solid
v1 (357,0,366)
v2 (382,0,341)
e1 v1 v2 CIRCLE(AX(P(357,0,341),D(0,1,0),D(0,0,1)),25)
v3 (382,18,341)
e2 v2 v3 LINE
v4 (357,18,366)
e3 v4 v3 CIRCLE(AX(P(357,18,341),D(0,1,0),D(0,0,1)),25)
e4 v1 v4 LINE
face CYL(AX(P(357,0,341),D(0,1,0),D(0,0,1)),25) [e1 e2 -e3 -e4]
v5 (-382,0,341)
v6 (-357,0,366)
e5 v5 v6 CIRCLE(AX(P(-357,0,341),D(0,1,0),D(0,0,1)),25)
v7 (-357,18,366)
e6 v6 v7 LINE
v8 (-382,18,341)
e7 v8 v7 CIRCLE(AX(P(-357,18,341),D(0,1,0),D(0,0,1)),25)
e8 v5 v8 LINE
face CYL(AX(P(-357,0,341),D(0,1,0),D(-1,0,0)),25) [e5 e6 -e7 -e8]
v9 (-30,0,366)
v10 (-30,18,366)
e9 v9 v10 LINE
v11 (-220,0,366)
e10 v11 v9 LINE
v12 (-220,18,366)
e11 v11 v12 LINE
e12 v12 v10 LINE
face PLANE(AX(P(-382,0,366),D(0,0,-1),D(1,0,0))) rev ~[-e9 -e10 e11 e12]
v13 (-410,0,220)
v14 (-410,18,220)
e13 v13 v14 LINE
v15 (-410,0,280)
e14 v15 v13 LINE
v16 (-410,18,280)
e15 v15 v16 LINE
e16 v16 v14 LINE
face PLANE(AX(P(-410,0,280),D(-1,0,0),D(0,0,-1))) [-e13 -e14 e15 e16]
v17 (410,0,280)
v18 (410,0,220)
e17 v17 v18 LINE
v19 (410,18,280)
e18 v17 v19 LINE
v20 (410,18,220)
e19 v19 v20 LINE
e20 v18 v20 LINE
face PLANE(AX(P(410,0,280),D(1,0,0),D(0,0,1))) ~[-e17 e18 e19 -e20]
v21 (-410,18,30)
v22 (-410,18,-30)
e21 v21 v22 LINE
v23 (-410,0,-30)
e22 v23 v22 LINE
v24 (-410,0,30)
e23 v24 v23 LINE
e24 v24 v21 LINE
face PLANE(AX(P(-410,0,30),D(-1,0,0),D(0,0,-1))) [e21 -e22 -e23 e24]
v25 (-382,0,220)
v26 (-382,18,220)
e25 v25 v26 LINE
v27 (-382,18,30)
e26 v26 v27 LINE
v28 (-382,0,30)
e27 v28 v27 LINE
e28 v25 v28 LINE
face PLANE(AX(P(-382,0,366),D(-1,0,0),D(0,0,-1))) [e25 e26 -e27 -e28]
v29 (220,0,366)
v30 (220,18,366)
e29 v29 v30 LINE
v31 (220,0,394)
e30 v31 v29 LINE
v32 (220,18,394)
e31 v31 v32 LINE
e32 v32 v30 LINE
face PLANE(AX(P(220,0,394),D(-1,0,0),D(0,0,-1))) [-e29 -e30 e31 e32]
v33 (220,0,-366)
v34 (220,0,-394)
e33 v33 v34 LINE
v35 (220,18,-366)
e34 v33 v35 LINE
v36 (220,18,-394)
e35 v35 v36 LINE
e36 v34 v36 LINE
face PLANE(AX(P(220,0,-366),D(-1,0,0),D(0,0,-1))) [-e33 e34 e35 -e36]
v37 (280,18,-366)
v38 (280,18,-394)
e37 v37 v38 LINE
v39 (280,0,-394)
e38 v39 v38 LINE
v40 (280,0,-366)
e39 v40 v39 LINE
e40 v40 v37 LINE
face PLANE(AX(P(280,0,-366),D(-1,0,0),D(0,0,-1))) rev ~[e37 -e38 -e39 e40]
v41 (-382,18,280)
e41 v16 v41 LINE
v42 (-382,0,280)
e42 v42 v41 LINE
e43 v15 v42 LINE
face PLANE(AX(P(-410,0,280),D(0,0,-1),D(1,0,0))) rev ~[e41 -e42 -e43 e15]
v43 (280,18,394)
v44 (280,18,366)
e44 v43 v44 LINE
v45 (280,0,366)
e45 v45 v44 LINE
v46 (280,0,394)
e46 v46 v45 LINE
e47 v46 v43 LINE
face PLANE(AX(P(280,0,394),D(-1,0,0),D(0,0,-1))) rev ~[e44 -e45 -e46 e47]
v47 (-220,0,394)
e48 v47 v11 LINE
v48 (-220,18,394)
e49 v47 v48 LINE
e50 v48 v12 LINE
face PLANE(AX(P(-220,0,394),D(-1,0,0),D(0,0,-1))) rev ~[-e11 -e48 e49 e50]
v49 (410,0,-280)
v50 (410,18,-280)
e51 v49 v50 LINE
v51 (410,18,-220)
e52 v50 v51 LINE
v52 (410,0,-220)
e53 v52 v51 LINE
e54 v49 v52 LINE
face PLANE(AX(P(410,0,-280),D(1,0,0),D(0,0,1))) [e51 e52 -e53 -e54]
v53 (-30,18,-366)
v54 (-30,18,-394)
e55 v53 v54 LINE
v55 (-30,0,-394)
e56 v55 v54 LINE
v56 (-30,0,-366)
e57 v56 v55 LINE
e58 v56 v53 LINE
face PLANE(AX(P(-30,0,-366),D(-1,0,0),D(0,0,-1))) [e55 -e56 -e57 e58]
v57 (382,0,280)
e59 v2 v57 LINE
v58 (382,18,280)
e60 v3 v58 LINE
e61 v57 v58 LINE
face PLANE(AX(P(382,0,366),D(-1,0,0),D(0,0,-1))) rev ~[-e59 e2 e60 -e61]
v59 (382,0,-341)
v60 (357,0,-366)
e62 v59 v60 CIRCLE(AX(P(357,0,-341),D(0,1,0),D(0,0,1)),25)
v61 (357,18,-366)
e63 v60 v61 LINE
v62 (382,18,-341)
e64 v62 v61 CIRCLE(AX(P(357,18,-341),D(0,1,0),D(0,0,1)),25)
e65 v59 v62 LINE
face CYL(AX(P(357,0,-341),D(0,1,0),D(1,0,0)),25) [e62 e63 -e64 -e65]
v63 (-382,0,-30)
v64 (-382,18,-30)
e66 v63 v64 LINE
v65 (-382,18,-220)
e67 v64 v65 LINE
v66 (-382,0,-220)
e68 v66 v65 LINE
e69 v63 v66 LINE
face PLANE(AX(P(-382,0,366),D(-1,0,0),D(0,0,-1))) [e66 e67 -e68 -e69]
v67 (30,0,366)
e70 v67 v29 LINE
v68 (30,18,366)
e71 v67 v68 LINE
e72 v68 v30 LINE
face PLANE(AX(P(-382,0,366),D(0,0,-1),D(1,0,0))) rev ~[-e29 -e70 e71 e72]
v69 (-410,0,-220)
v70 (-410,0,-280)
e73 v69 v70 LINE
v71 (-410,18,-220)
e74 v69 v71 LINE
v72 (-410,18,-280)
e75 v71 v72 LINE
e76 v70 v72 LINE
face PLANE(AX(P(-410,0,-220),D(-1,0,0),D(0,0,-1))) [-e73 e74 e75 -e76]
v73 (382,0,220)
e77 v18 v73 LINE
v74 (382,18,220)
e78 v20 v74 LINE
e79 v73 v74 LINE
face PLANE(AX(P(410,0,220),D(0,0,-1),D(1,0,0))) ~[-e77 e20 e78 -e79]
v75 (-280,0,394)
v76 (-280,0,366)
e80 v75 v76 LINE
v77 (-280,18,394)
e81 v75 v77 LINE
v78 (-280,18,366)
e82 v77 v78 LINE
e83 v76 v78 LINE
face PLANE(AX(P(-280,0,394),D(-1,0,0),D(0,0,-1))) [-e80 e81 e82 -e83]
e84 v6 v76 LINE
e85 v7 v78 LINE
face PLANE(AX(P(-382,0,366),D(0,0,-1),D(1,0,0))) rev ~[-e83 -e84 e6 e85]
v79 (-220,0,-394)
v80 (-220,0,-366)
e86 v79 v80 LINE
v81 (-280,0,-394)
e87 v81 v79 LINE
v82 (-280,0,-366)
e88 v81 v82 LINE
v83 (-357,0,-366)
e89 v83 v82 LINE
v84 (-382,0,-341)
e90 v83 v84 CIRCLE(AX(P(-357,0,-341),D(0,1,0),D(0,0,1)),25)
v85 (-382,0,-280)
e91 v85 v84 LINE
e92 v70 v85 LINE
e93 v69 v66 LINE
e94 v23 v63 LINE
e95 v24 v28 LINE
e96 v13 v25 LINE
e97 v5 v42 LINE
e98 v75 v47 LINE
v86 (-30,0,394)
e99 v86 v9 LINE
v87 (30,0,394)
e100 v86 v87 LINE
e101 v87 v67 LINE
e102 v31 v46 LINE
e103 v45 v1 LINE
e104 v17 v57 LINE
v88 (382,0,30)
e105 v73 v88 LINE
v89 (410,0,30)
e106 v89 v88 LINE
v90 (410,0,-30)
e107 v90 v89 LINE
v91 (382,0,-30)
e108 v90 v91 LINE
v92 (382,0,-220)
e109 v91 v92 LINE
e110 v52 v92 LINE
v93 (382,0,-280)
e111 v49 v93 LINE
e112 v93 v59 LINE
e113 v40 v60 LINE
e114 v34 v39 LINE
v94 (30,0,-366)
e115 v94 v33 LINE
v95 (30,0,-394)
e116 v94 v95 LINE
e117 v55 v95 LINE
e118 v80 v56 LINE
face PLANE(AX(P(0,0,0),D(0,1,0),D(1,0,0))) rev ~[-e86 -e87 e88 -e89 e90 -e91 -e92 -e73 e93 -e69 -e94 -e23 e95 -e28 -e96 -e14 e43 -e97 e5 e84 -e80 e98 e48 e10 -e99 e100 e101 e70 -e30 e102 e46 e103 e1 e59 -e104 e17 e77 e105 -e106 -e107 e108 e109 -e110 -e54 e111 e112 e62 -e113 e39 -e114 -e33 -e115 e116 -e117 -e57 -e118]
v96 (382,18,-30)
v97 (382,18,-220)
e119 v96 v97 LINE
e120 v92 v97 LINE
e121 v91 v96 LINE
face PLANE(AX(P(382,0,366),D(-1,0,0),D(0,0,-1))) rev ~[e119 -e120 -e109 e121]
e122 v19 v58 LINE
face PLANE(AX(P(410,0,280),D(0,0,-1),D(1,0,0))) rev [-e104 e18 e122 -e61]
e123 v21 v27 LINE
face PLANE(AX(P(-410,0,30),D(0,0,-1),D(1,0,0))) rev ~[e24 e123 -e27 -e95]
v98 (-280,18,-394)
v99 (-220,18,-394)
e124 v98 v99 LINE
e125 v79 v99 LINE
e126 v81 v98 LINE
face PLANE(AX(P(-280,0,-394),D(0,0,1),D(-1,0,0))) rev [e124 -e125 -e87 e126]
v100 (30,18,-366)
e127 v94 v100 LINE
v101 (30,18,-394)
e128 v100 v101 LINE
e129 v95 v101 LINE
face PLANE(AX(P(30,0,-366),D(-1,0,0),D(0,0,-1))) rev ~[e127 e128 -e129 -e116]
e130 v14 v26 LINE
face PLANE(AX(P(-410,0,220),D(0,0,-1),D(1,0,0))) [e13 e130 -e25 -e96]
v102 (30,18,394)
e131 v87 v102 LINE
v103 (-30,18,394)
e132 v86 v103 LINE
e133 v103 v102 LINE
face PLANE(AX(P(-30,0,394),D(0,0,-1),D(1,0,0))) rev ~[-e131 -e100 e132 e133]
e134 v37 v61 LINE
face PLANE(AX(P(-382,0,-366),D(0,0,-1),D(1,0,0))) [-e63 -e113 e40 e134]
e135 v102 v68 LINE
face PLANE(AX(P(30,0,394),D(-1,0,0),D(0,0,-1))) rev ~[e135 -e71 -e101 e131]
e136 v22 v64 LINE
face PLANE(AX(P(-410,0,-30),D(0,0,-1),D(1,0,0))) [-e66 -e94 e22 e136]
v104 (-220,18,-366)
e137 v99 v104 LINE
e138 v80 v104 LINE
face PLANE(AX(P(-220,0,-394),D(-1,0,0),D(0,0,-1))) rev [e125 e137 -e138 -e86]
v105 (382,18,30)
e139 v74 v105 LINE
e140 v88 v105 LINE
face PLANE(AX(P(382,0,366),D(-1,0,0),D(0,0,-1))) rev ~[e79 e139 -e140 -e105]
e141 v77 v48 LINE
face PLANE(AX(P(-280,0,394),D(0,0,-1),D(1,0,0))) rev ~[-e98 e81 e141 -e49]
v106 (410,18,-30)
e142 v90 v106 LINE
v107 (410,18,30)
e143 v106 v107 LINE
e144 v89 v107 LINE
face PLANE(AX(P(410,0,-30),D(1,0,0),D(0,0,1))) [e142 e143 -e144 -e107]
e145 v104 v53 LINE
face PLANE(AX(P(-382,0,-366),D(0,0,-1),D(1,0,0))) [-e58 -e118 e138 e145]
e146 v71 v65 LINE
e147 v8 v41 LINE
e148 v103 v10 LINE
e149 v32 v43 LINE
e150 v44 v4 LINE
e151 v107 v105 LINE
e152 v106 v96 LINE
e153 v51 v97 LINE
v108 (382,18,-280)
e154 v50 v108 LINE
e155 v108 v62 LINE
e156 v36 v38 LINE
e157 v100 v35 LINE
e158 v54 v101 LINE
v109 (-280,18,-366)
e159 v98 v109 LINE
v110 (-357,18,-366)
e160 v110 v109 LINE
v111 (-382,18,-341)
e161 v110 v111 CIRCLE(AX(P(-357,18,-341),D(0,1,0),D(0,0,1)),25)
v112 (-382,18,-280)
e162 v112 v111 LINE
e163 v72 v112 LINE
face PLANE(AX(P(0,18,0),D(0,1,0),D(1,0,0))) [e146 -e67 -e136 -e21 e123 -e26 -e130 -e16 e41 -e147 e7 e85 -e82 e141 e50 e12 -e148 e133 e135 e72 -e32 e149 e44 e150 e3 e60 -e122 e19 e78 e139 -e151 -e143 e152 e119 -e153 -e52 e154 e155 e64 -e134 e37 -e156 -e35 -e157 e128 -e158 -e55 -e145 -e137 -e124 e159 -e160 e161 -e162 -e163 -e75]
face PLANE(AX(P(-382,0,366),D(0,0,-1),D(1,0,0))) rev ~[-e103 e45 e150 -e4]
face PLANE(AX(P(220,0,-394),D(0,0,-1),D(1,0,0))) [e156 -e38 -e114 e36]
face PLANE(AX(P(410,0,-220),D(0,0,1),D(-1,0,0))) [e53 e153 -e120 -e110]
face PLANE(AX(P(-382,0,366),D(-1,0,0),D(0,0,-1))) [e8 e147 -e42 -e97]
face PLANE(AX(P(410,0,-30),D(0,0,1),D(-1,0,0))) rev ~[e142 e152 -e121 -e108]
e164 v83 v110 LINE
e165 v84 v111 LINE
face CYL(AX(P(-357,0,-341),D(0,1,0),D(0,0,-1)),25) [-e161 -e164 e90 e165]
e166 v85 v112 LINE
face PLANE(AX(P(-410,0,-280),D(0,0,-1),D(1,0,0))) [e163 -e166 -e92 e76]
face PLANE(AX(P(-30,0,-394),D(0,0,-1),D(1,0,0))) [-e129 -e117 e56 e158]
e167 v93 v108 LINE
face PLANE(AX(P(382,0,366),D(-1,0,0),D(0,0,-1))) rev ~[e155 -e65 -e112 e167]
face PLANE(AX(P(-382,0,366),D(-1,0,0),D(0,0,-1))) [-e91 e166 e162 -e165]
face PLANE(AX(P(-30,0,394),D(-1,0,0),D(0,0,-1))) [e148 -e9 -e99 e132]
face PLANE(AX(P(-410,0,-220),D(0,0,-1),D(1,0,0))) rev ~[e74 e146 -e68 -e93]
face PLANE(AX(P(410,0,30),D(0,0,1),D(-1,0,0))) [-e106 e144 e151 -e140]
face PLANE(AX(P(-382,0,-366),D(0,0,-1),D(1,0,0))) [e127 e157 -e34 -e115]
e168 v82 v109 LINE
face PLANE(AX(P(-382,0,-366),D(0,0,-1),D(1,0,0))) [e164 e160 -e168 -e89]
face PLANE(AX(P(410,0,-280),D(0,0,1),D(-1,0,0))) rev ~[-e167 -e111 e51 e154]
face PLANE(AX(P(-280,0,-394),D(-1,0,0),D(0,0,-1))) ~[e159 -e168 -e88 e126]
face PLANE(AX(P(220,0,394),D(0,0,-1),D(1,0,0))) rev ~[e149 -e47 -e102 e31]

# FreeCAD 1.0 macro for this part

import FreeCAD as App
import Part
import Sketcher
Q = App.Units.Quantity


def edges_at(feature, points):
    """Names of the edges that pass closest to the given points."""
    edges = feature.Shape.Edges
    near = lambda p: min(range(len(edges)), key=lambda i: edges[i].distToShape(Part.Vertex(*p))[0])
    return sorted({f"Edge{near(p) + 1}" for p in points})

doc = App.newDocument("Part")
body = doc.addObject("PartDesign::Body", "Body")

# Sketch on XZ plane
sketch1 = doc.addObject("Sketcher::SketchObject", "Sketch")
body.addObject(sketch1)
sketch1.AttachmentSupport = (doc.XZ_Plane, [""])
sketch1.MapMode = "FlatFace"
sketch1.addGeometry([
    Part.LineSegment(App.Vector(-382, -366, 0), App.Vector(-382, 366, 0)),
    Part.LineSegment(App.Vector(-382, 366, 0), App.Vector(382, 366, 0)),
    Part.LineSegment(App.Vector(382, 366, 0), App.Vector(382, -366, 0)),
    Part.LineSegment(App.Vector(382, -366, 0), App.Vector(-382, -366, 0)),
], False)
sketch1.addConstraint([
    Sketcher.Constraint("Coincident", 0, 2, 1, 1),
    Sketcher.Constraint("Coincident", 1, 2, 2, 1),
    Sketcher.Constraint("Coincident", 2, 2, 3, 1),
    Sketcher.Constraint("Coincident", 3, 2, 0, 1),
    Sketcher.Constraint("Vertical", 0),
    Sketcher.Constraint("Horizontal", 1),
    Sketcher.Constraint("Vertical", 2),
    Sketcher.Constraint("Horizontal", 3),
    Sketcher.Constraint("Symmetric", 0, 2, 2, 2, -1, 1),
    Sketcher.Constraint("DistanceX", 1, 1, 1, 2, Q("764 mm")),
    Sketcher.Constraint("DistanceY", 0, 1, 0, 2, Q("732 mm")),
])
pad1 = doc.addObject("PartDesign::Pad", "Pad")
body.addObject(pad1)
pad1.Profile = sketch1
pad1.Length = 18
pad1.Reversed = True

# Sketch on XZ plane
sketch2 = doc.addObject("Sketcher::SketchObject", "Sketch001")
body.addObject(sketch2)
sketch2.AttachmentSupport = (doc.XZ_Plane, [""])
sketch2.MapMode = "FlatFace"
sketch2.addGeometry([
    Part.LineSegment(App.Vector(-410, 220, 0), App.Vector(-410, 280, 0)),
    Part.LineSegment(App.Vector(-410, 280, 0), App.Vector(-382, 280, 0)),
    Part.LineSegment(App.Vector(-382, 280, 0), App.Vector(-382, 220, 0)),
    Part.LineSegment(App.Vector(-382, 220, 0), App.Vector(-410, 220, 0)),
], False)
sketch2.addConstraint([
    Sketcher.Constraint("Coincident", 0, 2, 1, 1),
    Sketcher.Constraint("Coincident", 1, 2, 2, 1),
    Sketcher.Constraint("Coincident", 2, 2, 3, 1),
    Sketcher.Constraint("Coincident", 3, 2, 0, 1),
    Sketcher.Constraint("Vertical", 0),
    Sketcher.Constraint("Horizontal", 1),
    Sketcher.Constraint("Vertical", 2),
    Sketcher.Constraint("Horizontal", 3),
    Sketcher.Constraint("DistanceX", 1, 1, 1, 2, Q("28 mm")),
    Sketcher.Constraint("DistanceY", 0, 1, 0, 2, Q("60 mm")),
    Sketcher.Constraint("DistanceX", 0, 2, -1, 1, Q("410 mm")),
    Sketcher.Constraint("DistanceY", -1, 1, 0, 2, Q("280 mm")),
])
pad2 = doc.addObject("PartDesign::Pad", "Pad001")
body.addObject(pad2)
pad2.Profile = sketch2
pad2.Length = 18
pad2.Reversed = True
doc.recompute()

linearpattern = doc.addObject("PartDesign::LinearPattern", "LinearPattern")
body.addObject(linearpattern)
linearpattern.Originals = [pad2]
linearpattern.Direction = (doc.Z_Axis, [""])
linearpattern.Mode = "offset"
linearpattern.Offset = 250
linearpattern.Occurrences = 3
linearpattern.Reversed = True
body.Tip = linearpattern
doc.recompute()

mirrored = doc.addObject("PartDesign::Mirrored", "Mirrored")
body.addObject(mirrored)
mirrored.Originals = [pad2]
mirrored.MirrorPlane = (doc.YZ_Plane, [""])
body.Tip = mirrored

# Sketch on XZ plane
sketch3 = doc.addObject("Sketcher::SketchObject", "Sketch002")
body.addObject(sketch3)
sketch3.AttachmentSupport = (doc.XZ_Plane, [""])
sketch3.MapMode = "FlatFace"
sketch3.addGeometry([
    Part.LineSegment(App.Vector(410, 30, 0), App.Vector(410, -30, 0)),
    Part.LineSegment(App.Vector(410, -30, 0), App.Vector(382, -30, 0)),
    Part.LineSegment(App.Vector(382, -30, 0), App.Vector(382, 30, 0)),
    Part.LineSegment(App.Vector(382, 30, 0), App.Vector(410, 30, 0)),
], False)
sketch3.addConstraint([
    Sketcher.Constraint("Coincident", 0, 2, 1, 1),
    Sketcher.Constraint("Coincident", 1, 2, 2, 1),
    Sketcher.Constraint("Coincident", 2, 2, 3, 1),
    Sketcher.Constraint("Coincident", 3, 2, 0, 1),
    Sketcher.Constraint("Vertical", 0),
    Sketcher.Constraint("Horizontal", 1),
    Sketcher.Constraint("Vertical", 2),
    Sketcher.Constraint("Horizontal", 3),
    Sketcher.Constraint("DistanceX", 1, 2, 1, 1, Q("28 mm")),
    Sketcher.Constraint("DistanceY", 0, 2, 0, 1, Q("60 mm")),
    Sketcher.Constraint("DistanceX", -1, 1, 0, 2, Q("410 mm")),
    Sketcher.Constraint("DistanceY", 0, 2, -1, 1, Q("30 mm")),
])
pad3 = doc.addObject("PartDesign::Pad", "Pad002")
body.addObject(pad3)
pad3.Profile = sketch3
pad3.Length = 18
pad3.Reversed = True

# Sketch on XZ plane
sketch4 = doc.addObject("Sketcher::SketchObject", "Sketch003")
body.addObject(sketch4)
sketch4.AttachmentSupport = (doc.XZ_Plane, [""])
sketch4.MapMode = "FlatFace"
sketch4.addGeometry([
    Part.LineSegment(App.Vector(410, -220, 0), App.Vector(410, -280, 0)),
    Part.LineSegment(App.Vector(410, -280, 0), App.Vector(382, -280, 0)),
    Part.LineSegment(App.Vector(382, -280, 0), App.Vector(382, -220, 0)),
    Part.LineSegment(App.Vector(382, -220, 0), App.Vector(410, -220, 0)),
], False)
sketch4.addConstraint([
    Sketcher.Constraint("Coincident", 0, 2, 1, 1),
    Sketcher.Constraint("Coincident", 1, 2, 2, 1),
    Sketcher.Constraint("Coincident", 2, 2, 3, 1),
    Sketcher.Constraint("Coincident", 3, 2, 0, 1),
    Sketcher.Constraint("Vertical", 0),
    Sketcher.Constraint("Horizontal", 1),
    Sketcher.Constraint("Vertical", 2),
    Sketcher.Constraint("Horizontal", 3),
    Sketcher.Constraint("DistanceX", 1, 2, 1, 1, Q("28 mm")),
    Sketcher.Constraint("DistanceY", 0, 2, 0, 1, Q("60 mm")),
    Sketcher.Constraint("DistanceX", -1, 1, 0, 2, Q("410 mm")),
    Sketcher.Constraint("DistanceY", 0, 2, -1, 1, Q("280 mm")),
])
pad4 = doc.addObject("PartDesign::Pad", "Pad003")
body.addObject(pad4)
pad4.Profile = sketch4
pad4.Length = 18
pad4.Reversed = True

# Sketch on XZ plane
sketch5 = doc.addObject("Sketcher::SketchObject", "Sketch004")
body.addObject(sketch5)
sketch5.AttachmentSupport = (doc.XZ_Plane, [""])
sketch5.MapMode = "FlatFace"
sketch5.addGeometry([
    Part.LineSegment(App.Vector(-280, 366, 0), App.Vector(-280, 394, 0)),
    Part.LineSegment(App.Vector(-280, 394, 0), App.Vector(-220, 394, 0)),
    Part.LineSegment(App.Vector(-220, 394, 0), App.Vector(-220, 366, 0)),
    Part.LineSegment(App.Vector(-220, 366, 0), App.Vector(-280, 366, 0)),
], False)
sketch5.addConstraint([
    Sketcher.Constraint("Coincident", 0, 2, 1, 1),
    Sketcher.Constraint("Coincident", 1, 2, 2, 1),
    Sketcher.Constraint("Coincident", 2, 2, 3, 1),
    Sketcher.Constraint("Coincident", 3, 2, 0, 1),
    Sketcher.Constraint("Vertical", 0),
    Sketcher.Constraint("Horizontal", 1),
    Sketcher.Constraint("Vertical", 2),
    Sketcher.Constraint("Horizontal", 3),
    Sketcher.Constraint("DistanceX", 1, 1, 1, 2, Q("60 mm")),
    Sketcher.Constraint("DistanceY", 0, 1, 0, 2, Q("28 mm")),
    Sketcher.Constraint("DistanceX", 0, 2, -1, 1, Q("280 mm")),
    Sketcher.Constraint("DistanceY", -1, 1, 0, 2, Q("394 mm")),
])
pad5 = doc.addObject("PartDesign::Pad", "Pad004")
body.addObject(pad5)
pad5.Profile = sketch5
pad5.Length = 18
pad5.Reversed = True
doc.recompute()

linearpattern2 = doc.addObject("PartDesign::LinearPattern", "LinearPattern001")
body.addObject(linearpattern2)
linearpattern2.Originals = [pad5]
linearpattern2.Direction = (doc.X_Axis, [""])
linearpattern2.Mode = "offset"
linearpattern2.Offset = 250
linearpattern2.Occurrences = 3
body.Tip = linearpattern2
doc.recompute()

mirrored2 = doc.addObject("PartDesign::Mirrored", "Mirrored001")
body.addObject(mirrored2)
mirrored2.Originals = [pad5]
mirrored2.MirrorPlane = (doc.XY_Plane, [""])
body.Tip = mirrored2

# Sketch on XZ plane
sketch6 = doc.addObject("Sketcher::SketchObject", "Sketch005")
body.addObject(sketch6)
sketch6.AttachmentSupport = (doc.XZ_Plane, [""])
sketch6.MapMode = "FlatFace"
sketch6.addGeometry([
    Part.LineSegment(App.Vector(-30, -394, 0), App.Vector(-30, -366, 0)),
    Part.LineSegment(App.Vector(-30, -366, 0), App.Vector(30, -366, 0)),
    Part.LineSegment(App.Vector(30, -366, 0), App.Vector(30, -394, 0)),
    Part.LineSegment(App.Vector(30, -394, 0), App.Vector(-30, -394, 0)),
], False)
sketch6.addConstraint([
    Sketcher.Constraint("Coincident", 0, 2, 1, 1),
    Sketcher.Constraint("Coincident", 1, 2, 2, 1),
    Sketcher.Constraint("Coincident", 2, 2, 3, 1),
    Sketcher.Constraint("Coincident", 3, 2, 0, 1),
    Sketcher.Constraint("Vertical", 0),
    Sketcher.Constraint("Horizontal", 1),
    Sketcher.Constraint("Vertical", 2),
    Sketcher.Constraint("Horizontal", 3),
    Sketcher.Constraint("DistanceX", 1, 1, 1, 2, Q("60 mm")),
    Sketcher.Constraint("DistanceY", 0, 1, 0, 2, Q("28 mm")),
    Sketcher.Constraint("DistanceX", 0, 2, -1, 1, Q("30 mm")),
    Sketcher.Constraint("DistanceY", 0, 2, -1, 1, Q("366 mm")),
])
pad6 = doc.addObject("PartDesign::Pad", "Pad005")
body.addObject(pad6)
pad6.Profile = sketch6
pad6.Length = 18
pad6.Reversed = True

# Sketch on XZ plane
sketch7 = doc.addObject("Sketcher::SketchObject", "Sketch006")
body.addObject(sketch7)
sketch7.AttachmentSupport = (doc.XZ_Plane, [""])
sketch7.MapMode = "FlatFace"
sketch7.addGeometry([
    Part.LineSegment(App.Vector(220, -394, 0), App.Vector(220, -366, 0)),
    Part.LineSegment(App.Vector(220, -366, 0), App.Vector(280, -366, 0)),
    Part.LineSegment(App.Vector(280, -366, 0), App.Vector(280, -394, 0)),
    Part.LineSegment(App.Vector(280, -394, 0), App.Vector(220, -394, 0)),
], False)
sketch7.addConstraint([
    Sketcher.Constraint("Coincident", 0, 2, 1, 1),
    Sketcher.Constraint("Coincident", 1, 2, 2, 1),
    Sketcher.Constraint("Coincident", 2, 2, 3, 1),
    Sketcher.Constraint("Coincident", 3, 2, 0, 1),
    Sketcher.Constraint("Vertical", 0),
    Sketcher.Constraint("Horizontal", 1),
    Sketcher.Constraint("Vertical", 2),
    Sketcher.Constraint("Horizontal", 3),
    Sketcher.Constraint("DistanceX", 1, 1, 1, 2, Q("60 mm")),
    Sketcher.Constraint("DistanceY", 0, 1, 0, 2, Q("28 mm")),
    Sketcher.Constraint("DistanceX", -1, 1, 0, 2, Q("220 mm")),
    Sketcher.Constraint("DistanceY", 0, 2, -1, 1, Q("366 mm")),
])
pad7 = doc.addObject("PartDesign::Pad", "Pad006")
body.addObject(pad7)
pad7.Profile = sketch7
pad7.Length = 18
pad7.Reversed = True
doc.recompute()

fillet = doc.addObject("PartDesign::Fillet", "Fillet")
body.addObject(fillet)
fillet.Base = (pad7, edges_at(pad7, [
    (-382, 9, -366),
    (-382, 9, 366),
    (382, 9, 366),
    (382, 9, -366),
]))
fillet.Radius = 25

doc.recompute()
